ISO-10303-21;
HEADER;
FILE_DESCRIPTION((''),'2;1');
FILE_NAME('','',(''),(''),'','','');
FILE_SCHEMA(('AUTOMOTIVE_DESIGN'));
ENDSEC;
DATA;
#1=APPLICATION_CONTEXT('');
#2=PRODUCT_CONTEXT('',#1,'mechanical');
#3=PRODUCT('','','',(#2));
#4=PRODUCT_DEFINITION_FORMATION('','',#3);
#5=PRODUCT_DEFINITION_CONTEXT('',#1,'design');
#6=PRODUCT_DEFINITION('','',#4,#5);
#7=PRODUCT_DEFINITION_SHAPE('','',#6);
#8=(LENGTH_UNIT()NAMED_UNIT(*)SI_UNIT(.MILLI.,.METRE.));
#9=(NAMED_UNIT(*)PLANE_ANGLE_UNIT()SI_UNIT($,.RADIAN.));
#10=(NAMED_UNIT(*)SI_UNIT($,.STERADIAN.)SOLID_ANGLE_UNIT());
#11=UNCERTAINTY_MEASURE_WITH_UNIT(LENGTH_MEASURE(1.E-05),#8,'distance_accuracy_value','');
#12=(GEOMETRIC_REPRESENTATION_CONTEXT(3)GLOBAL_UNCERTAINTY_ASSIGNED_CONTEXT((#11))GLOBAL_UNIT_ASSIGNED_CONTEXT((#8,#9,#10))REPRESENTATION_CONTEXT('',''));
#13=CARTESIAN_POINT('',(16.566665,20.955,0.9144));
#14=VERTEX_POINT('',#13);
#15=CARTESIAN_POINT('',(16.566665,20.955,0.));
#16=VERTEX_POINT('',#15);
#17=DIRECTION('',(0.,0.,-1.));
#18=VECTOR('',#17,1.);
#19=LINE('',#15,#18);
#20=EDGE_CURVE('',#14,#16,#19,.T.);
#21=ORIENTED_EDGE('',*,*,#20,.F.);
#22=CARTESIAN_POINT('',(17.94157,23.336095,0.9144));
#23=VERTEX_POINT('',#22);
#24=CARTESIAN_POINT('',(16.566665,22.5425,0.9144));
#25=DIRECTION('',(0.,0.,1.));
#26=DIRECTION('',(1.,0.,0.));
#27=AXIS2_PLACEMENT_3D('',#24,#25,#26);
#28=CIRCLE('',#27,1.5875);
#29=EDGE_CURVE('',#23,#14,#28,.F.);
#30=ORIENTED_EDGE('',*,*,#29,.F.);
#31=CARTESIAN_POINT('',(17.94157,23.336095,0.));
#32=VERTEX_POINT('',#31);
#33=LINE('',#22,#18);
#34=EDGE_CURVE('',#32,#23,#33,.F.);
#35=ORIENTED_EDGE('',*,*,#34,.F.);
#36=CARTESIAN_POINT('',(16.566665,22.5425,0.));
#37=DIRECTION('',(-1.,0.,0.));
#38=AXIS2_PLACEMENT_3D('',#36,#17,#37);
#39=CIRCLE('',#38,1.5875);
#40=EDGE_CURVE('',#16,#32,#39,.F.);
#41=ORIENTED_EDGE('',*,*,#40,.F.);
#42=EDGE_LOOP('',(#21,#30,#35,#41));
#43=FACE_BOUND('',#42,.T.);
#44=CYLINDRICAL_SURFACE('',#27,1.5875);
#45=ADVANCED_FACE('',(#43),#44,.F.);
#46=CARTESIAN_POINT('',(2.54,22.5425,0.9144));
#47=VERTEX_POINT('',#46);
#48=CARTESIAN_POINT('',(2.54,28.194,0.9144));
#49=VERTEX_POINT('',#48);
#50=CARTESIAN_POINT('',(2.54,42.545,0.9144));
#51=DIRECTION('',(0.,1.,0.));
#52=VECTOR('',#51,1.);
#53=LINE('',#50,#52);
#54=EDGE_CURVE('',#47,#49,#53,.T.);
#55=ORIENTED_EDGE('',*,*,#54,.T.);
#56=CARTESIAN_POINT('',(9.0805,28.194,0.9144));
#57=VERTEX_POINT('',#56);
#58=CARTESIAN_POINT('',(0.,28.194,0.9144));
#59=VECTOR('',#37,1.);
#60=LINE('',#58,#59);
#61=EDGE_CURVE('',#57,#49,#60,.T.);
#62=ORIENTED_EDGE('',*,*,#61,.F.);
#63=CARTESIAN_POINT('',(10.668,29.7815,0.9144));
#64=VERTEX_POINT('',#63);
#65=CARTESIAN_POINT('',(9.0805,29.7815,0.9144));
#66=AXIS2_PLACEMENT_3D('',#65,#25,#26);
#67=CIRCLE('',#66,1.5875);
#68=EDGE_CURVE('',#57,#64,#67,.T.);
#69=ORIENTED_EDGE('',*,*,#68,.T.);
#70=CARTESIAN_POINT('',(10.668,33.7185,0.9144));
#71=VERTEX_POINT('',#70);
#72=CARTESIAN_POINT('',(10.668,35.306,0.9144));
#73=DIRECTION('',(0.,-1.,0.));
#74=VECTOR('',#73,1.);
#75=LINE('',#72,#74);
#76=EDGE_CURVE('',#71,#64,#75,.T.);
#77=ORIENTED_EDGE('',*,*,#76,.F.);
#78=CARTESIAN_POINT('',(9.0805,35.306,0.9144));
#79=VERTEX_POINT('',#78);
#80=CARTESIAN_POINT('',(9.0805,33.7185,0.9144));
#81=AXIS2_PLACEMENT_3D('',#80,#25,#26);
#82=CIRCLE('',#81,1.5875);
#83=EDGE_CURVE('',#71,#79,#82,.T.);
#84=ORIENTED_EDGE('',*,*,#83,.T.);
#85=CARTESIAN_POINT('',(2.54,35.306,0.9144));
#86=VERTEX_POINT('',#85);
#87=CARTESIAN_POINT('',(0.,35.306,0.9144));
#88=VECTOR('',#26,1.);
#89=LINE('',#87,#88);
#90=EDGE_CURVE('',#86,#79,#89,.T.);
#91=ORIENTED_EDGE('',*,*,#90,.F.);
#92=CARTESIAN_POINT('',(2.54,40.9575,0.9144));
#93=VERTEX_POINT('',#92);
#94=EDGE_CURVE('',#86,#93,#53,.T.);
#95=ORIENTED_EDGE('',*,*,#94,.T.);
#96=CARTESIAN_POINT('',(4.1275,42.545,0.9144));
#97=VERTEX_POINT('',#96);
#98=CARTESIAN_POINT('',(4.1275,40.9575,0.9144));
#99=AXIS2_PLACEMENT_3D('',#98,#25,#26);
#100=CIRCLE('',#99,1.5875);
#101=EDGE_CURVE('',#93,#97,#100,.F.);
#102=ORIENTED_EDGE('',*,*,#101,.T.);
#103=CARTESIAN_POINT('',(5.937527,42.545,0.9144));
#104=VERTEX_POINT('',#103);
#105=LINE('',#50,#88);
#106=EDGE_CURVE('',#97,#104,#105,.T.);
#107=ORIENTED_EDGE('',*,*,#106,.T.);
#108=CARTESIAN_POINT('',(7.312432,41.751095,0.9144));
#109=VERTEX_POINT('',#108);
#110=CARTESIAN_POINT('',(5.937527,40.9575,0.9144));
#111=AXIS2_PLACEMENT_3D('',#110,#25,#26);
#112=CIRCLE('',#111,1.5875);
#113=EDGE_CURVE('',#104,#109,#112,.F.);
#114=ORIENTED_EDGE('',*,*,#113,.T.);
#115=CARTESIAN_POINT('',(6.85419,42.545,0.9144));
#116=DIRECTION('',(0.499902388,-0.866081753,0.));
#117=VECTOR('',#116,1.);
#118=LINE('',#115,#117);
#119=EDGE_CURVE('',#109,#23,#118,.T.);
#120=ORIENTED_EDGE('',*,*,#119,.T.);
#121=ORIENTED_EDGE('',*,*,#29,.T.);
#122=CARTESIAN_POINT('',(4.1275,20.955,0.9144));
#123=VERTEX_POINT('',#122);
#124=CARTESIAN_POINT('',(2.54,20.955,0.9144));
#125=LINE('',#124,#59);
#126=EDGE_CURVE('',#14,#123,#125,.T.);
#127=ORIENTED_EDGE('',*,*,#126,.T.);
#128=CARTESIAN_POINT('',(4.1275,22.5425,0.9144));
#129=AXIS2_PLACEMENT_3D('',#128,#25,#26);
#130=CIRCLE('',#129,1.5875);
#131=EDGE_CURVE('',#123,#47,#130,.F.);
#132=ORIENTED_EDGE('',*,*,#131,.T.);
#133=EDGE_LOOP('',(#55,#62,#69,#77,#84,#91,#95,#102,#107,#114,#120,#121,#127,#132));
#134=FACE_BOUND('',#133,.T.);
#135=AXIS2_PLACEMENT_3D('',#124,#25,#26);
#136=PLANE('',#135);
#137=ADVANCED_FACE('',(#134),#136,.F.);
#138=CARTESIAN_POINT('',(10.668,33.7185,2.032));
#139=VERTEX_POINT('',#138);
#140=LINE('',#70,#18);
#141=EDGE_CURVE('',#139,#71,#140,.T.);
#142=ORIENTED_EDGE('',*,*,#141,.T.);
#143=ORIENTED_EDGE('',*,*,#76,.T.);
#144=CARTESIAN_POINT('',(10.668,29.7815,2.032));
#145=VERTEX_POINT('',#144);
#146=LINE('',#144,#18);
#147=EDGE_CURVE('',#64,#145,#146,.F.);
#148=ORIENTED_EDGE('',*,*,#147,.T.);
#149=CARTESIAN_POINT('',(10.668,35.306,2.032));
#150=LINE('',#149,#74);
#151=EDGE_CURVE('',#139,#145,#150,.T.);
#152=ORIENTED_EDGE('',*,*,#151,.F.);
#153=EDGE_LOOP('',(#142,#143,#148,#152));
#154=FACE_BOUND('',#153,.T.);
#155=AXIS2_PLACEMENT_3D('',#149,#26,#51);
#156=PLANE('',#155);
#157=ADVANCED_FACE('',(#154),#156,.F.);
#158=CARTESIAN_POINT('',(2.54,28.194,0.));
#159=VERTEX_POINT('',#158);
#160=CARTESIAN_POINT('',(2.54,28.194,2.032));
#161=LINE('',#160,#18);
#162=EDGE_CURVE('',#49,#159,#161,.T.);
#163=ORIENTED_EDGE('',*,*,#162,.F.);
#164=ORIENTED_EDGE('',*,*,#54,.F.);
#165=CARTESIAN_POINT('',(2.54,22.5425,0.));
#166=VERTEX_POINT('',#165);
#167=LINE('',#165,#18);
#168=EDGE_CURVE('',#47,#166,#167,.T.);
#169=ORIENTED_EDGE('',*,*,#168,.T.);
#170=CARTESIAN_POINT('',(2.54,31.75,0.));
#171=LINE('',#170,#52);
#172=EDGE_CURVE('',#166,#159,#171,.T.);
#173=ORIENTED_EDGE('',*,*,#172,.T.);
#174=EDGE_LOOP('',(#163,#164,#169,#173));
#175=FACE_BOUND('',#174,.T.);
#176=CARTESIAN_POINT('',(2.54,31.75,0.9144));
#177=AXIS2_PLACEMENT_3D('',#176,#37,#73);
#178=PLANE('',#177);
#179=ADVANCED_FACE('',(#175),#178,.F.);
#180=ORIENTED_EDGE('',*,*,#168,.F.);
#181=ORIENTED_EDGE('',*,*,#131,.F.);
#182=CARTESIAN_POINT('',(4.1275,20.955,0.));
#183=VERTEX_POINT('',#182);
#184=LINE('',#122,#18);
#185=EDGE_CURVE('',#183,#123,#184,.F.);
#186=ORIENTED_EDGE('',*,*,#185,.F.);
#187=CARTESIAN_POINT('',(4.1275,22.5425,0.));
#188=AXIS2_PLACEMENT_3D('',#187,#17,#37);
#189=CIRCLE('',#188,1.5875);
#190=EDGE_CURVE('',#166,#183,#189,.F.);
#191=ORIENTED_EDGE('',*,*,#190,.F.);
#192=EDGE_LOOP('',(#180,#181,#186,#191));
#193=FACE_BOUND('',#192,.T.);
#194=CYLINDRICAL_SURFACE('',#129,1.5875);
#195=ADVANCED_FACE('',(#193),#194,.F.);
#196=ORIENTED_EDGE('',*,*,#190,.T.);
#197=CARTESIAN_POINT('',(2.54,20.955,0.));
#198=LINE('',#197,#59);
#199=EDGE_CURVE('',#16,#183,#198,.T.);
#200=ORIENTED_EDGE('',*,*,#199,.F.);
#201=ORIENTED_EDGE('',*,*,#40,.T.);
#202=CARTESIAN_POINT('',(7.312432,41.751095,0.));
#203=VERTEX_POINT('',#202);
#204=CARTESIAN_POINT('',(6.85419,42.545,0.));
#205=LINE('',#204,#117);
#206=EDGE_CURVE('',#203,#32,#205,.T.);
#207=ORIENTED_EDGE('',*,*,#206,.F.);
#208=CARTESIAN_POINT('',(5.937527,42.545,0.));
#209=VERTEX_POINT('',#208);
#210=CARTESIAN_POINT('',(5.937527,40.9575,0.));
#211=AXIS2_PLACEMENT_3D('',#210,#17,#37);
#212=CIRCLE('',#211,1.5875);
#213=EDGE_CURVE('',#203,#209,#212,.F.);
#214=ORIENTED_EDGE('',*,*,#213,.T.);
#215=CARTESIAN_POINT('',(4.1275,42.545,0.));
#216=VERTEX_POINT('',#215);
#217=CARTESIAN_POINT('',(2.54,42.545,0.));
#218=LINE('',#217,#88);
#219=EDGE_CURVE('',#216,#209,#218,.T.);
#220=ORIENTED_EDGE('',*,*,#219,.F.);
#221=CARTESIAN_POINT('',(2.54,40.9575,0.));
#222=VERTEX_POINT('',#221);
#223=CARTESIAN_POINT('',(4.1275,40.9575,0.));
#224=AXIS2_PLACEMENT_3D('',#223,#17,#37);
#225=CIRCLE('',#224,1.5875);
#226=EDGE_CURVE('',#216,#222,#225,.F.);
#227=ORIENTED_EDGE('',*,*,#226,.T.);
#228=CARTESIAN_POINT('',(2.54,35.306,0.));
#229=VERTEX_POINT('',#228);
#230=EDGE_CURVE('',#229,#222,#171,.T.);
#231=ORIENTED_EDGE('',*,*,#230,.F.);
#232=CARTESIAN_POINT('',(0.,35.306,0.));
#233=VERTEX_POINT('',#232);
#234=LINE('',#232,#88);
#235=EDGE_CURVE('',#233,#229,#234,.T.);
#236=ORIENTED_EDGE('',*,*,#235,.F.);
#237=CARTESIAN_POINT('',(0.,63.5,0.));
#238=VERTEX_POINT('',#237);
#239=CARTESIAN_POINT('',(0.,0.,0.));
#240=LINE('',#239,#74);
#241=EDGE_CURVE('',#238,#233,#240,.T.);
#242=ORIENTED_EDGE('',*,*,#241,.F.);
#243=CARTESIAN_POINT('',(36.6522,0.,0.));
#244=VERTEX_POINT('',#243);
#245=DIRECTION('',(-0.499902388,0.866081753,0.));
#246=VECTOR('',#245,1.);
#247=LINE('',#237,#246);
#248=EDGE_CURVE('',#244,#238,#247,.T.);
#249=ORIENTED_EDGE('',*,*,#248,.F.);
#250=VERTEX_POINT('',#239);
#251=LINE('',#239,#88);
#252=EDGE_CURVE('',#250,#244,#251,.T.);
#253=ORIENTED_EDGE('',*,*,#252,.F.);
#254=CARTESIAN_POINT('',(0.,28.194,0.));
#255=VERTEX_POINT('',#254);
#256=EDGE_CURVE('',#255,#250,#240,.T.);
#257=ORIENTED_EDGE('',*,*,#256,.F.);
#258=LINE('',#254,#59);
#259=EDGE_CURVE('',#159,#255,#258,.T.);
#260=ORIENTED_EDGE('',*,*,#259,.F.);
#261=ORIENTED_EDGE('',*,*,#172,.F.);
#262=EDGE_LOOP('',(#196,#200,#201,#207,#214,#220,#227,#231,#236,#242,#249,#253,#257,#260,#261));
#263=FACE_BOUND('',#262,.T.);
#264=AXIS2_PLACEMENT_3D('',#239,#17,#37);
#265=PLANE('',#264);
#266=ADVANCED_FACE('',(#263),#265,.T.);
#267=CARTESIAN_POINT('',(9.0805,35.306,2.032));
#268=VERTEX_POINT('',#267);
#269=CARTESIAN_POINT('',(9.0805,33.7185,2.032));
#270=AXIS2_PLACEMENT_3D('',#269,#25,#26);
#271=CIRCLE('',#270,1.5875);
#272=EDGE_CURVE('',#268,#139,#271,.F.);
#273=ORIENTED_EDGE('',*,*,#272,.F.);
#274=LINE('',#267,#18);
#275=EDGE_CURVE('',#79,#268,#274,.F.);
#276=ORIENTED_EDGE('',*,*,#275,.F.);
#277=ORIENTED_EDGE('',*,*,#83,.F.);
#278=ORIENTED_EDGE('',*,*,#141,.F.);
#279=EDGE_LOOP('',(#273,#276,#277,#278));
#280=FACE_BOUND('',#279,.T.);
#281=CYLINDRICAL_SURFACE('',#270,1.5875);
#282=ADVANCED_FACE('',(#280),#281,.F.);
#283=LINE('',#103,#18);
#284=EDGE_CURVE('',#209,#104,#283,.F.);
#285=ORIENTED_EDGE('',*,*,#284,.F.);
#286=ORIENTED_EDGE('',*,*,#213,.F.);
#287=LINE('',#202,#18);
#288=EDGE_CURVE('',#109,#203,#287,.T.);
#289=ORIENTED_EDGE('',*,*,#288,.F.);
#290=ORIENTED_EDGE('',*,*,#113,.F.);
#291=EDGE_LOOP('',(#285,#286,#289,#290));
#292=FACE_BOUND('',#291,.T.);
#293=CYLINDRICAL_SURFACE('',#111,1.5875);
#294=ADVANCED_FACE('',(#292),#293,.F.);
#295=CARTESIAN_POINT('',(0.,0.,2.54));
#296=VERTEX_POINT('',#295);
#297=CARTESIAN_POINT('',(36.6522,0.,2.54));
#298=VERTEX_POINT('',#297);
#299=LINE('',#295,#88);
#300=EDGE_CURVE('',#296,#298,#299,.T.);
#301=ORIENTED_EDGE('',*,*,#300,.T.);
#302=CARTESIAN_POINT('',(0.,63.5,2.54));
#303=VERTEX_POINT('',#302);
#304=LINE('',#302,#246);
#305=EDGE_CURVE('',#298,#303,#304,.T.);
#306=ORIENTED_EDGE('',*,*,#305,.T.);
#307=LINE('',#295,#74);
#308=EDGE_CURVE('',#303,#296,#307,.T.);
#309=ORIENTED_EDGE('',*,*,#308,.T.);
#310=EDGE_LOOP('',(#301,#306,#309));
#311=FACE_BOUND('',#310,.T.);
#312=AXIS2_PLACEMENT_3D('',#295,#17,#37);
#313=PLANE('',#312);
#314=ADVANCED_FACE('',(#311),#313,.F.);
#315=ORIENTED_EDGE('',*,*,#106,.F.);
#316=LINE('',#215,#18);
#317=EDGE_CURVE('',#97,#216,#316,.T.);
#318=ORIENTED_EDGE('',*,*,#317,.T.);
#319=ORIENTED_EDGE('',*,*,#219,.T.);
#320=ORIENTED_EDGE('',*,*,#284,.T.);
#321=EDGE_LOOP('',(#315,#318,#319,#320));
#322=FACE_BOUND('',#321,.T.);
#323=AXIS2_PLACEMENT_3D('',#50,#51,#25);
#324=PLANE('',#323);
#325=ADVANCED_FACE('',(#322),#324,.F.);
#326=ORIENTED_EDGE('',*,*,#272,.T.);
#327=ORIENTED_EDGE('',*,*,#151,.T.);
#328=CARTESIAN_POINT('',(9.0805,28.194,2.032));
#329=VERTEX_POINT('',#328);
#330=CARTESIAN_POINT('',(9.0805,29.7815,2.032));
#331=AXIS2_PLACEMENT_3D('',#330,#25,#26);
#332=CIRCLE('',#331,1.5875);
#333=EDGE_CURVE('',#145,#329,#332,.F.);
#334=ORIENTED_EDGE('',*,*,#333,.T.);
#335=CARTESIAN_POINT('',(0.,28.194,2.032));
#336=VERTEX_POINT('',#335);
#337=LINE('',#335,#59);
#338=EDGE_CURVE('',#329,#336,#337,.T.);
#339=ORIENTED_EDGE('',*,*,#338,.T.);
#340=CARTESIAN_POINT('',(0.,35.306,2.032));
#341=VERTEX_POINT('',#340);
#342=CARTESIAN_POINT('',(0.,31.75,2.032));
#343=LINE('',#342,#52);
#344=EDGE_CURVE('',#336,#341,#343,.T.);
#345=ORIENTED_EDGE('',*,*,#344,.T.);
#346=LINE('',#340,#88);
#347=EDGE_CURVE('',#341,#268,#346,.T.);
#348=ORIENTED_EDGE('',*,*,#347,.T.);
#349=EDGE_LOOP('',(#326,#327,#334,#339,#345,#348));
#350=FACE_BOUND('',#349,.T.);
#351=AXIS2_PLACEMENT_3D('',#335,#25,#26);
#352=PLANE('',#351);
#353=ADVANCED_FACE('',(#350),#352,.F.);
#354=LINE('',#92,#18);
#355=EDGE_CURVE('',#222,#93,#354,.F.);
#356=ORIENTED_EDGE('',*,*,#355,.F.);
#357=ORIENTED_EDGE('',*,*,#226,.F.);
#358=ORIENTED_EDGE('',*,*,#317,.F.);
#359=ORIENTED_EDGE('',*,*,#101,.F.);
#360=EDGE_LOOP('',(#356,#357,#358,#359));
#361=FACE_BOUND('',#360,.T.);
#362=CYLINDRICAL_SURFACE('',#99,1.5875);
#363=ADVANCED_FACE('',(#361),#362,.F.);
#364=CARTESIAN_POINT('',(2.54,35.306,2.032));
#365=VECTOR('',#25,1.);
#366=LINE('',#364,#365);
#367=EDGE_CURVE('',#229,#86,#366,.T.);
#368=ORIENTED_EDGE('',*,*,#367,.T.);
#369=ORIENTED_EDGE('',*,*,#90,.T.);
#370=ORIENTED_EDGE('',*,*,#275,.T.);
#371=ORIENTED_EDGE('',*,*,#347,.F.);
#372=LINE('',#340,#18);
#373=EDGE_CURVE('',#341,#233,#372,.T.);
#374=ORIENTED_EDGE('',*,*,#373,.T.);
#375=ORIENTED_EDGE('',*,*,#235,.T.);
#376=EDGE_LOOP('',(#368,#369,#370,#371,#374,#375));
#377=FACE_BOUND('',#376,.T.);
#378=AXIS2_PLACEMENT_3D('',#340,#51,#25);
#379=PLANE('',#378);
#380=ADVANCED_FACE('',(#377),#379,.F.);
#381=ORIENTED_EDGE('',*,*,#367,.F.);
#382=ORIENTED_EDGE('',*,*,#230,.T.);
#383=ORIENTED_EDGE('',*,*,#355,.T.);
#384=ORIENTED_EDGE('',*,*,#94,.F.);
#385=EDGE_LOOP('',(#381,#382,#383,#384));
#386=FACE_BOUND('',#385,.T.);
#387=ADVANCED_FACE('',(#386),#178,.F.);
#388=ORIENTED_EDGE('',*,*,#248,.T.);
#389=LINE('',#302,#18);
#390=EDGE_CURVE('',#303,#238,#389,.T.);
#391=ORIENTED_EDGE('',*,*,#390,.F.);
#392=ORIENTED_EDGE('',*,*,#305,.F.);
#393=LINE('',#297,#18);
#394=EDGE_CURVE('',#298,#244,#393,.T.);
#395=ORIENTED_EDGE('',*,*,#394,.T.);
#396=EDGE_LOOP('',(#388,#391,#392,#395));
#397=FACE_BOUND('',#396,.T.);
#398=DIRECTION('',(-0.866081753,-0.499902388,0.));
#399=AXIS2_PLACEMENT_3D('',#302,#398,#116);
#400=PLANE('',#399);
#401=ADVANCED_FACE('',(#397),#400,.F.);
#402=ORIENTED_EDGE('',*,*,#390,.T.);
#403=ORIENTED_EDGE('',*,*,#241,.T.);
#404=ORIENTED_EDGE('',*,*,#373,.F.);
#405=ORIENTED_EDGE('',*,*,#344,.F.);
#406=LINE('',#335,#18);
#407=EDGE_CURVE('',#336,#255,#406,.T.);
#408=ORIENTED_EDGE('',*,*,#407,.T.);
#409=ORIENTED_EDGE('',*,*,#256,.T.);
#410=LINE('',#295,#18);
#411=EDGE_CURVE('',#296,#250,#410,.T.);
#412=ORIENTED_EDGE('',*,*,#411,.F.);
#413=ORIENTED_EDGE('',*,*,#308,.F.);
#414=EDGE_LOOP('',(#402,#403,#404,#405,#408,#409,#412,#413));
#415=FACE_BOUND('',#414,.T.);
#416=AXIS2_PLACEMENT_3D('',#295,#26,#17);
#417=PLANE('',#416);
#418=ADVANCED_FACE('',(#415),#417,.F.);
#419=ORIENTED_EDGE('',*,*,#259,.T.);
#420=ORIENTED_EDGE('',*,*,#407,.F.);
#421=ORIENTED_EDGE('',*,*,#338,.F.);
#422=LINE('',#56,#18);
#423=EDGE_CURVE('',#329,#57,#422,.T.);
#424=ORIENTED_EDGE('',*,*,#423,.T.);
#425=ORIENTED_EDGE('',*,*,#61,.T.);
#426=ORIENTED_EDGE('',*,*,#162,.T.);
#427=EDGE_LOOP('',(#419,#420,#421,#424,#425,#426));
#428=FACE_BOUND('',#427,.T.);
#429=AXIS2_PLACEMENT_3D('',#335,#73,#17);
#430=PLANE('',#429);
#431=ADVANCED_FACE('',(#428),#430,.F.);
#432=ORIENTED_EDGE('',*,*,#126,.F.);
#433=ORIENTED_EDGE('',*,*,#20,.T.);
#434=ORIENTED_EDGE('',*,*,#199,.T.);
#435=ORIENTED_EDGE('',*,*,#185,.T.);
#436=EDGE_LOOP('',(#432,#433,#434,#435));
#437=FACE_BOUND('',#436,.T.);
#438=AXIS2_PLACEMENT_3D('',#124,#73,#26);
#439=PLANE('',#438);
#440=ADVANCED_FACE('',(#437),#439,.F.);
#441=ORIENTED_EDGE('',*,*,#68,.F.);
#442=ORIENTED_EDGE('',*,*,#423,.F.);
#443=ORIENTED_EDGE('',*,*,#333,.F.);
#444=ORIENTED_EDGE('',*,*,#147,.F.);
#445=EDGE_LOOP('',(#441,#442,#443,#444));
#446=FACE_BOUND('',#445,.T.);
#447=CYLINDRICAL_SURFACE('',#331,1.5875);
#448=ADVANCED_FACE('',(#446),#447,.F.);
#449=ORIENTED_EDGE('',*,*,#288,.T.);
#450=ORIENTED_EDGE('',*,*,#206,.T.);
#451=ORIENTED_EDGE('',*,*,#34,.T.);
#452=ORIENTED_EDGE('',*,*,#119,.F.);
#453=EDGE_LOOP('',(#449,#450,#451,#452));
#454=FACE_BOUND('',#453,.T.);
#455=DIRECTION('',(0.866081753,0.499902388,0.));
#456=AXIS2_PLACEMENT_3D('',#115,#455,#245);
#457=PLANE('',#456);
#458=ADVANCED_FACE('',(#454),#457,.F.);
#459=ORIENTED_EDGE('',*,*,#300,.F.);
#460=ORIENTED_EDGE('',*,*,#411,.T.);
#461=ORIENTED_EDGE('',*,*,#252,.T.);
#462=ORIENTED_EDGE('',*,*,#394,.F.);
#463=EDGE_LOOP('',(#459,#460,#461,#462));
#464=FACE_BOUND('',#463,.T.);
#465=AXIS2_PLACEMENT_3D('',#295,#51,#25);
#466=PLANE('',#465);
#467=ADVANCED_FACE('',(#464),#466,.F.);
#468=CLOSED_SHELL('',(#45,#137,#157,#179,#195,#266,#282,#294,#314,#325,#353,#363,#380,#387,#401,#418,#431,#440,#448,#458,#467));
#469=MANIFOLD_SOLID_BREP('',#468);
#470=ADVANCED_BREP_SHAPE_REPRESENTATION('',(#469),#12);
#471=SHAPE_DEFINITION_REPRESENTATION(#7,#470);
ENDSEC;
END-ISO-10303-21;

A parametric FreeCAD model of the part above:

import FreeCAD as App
import Part
import Sketcher
Q = App.Units.Quantity


def edges_at(feature, points):
    """Names of the edges that pass closest to the given points."""
    edges = feature.Shape.Edges
    near = lambda p: min(range(len(edges)), key=lambda i: edges[i].distToShape(Part.Vertex(*p))[0])
    return sorted({f"Edge{near(p) + 1}" for p in points})

doc = App.newDocument("Part")
body = doc.addObject("PartDesign::Body", "Body")

sketch1 = body.newObject("Sketcher::SketchObject", "Sketch")
sketch1.AttachmentSupport = (doc.getObject("XY_Plane"), [""])
sketch1.MapMode = "FlatFace"
sketch1.addGeometry([
    Part.LineSegment(App.Vector(36.6522, 0, 0), App.Vector(0, 63.5, 0)),
    Part.LineSegment(App.Vector(0, 63.5, 0), App.Vector(0, 0, 0)),
    Part.LineSegment(App.Vector(0, 0, 0), App.Vector(36.6522, 0, 0)),
], False)
sketch1.addConstraint([
    Sketcher.Constraint("Coincident", 0, 2, 1, 1),
    Sketcher.Constraint("Coincident", 1, 2, 2, 1),
    Sketcher.Constraint("Coincident", 2, 2, 0, 1),
    Sketcher.Constraint("Vertical", 1),
    Sketcher.Constraint("Horizontal", 2),
    Sketcher.Constraint("Coincident", 1, 2, -1, 1),
    Sketcher.Constraint("DistanceY", 1, 2, 1, 1, Q("2.5 in")),
    Sketcher.Constraint("DistanceX", 2, 1, 2, 2, Q("1.443 in")),
])
pad1 = body.newObject("PartDesign::Pad", "Pad")
pad1.Profile = sketch1
pad1.Length = Q("0.1 in")

sketch2 = body.newObject("Sketcher::SketchObject", "Sketch001")
sketch2.AttachmentSupport = (doc.getObject("XY_Plane"), [""])
sketch2.MapMode = "FlatFace"
sketch2.addGeometry([
    Part.LineSegment(App.Vector(0, 35.306, 0), App.Vector(10.668, 35.306, 0)),
    Part.LineSegment(App.Vector(10.668, 35.306, 0), App.Vector(10.668, 28.194, 0)),
    Part.LineSegment(App.Vector(10.668, 28.194, 0), App.Vector(0, 28.194, 0)),
    Part.LineSegment(App.Vector(0, 28.194, 0), App.Vector(0, 35.306, 0)),
], False)
sketch2.addConstraint([
    Sketcher.Constraint("Coincident", 0, 2, 1, 1),
    Sketcher.Constraint("Coincident", 1, 2, 2, 1),
    Sketcher.Constraint("Coincident", 2, 2, 3, 1),
    Sketcher.Constraint("Coincident", 3, 2, 0, 1),
    Sketcher.Constraint("Horizontal", 0),
    Sketcher.Constraint("Vertical", 1),
    Sketcher.Constraint("Horizontal", 2),
    Sketcher.Constraint("Vertical", 3),
    Sketcher.Constraint("PointOnObject", 2, 2, -2),
    Sketcher.Constraint("DistanceX", 0, 1, 0, 2, Q("0.42 in")),
    Sketcher.Constraint("DistanceY", 1, 2, 1, 1, Q("0.28 in")),
    Sketcher.Constraint("DistanceY", -1, 1, 0, 2, Q("1.39 in")),
])
pocket1 = body.newObject("PartDesign::Pocket", "Pocket")
pocket1.Profile = sketch2
pocket1.Length = Q("0.08 in")
pocket1.Reversed = True

sketch3 = body.newObject("Sketcher::SketchObject", "Sketch002")
sketch3.AttachmentSupport = (doc.getObject("XY_Plane"), [""])
sketch3.MapMode = "FlatFace"
sketch3.addGeometry([
    Part.LineSegment(App.Vector(2.54, 20.955, 0), App.Vector(2.54, 42.545, 0)),
    Part.LineSegment(App.Vector(2.54, 42.545, 0), App.Vector(6.85419, 42.545, 0)),
    Part.LineSegment(App.Vector(6.85419, 42.545, 0), App.Vector(19.315938, 20.955, 0)),
    Part.LineSegment(App.Vector(19.315938, 20.955, 0), App.Vector(2.54, 20.955, 0)),
], False)
sketch3.addConstraint([
    Sketcher.Constraint("Coincident", 0, 2, 1, 1),
    Sketcher.Constraint("Coincident", 1, 2, 2, 1),
    Sketcher.Constraint("Coincident", 2, 2, 3, 1),
    Sketcher.Constraint("Coincident", 3, 2, 0, 1),
    Sketcher.Constraint("Vertical", 0),
    Sketcher.Constraint("Horizontal", 1),
    Sketcher.Constraint("Horizontal", 3),
    Sketcher.Constraint("DistanceY", 0, 1, 0, 2, Q("0.85 in")),
    Sketcher.Constraint("DistanceX", -1, 1, 0, 2, Q("0.1 in")),
    Sketcher.Constraint("DistanceY", -1, 1, 0, 2, Q("1.675 in")),
    Sketcher.Constraint("DistanceX", 1, 1, 1, 2, 4.31419),
    Sketcher.Constraint("DistanceX", 3, 2, 3, 1, 16.775938),
])
pocket2 = body.newObject("PartDesign::Pocket", "Pocket001")
pocket2.Profile = sketch3
pocket2.Length = Q("0.036 in")
pocket2.Reversed = True
doc.recompute()

fillet = body.newObject("PartDesign::Fillet", "Fillet")
fillet.Base = (pocket2, edges_at(pocket2, [
    (10.668, 28.194, 1.473),
    (10.668, 35.306, 1.473),
    (2.54, 42.545, 0.457),
    (2.54, 20.955, 0.457),
    (19.316, 20.955, 0.457),
    (6.854, 42.545, 0.457),
]))
fillet.Radius = Q("0.0625 in")

doc.recompute()
